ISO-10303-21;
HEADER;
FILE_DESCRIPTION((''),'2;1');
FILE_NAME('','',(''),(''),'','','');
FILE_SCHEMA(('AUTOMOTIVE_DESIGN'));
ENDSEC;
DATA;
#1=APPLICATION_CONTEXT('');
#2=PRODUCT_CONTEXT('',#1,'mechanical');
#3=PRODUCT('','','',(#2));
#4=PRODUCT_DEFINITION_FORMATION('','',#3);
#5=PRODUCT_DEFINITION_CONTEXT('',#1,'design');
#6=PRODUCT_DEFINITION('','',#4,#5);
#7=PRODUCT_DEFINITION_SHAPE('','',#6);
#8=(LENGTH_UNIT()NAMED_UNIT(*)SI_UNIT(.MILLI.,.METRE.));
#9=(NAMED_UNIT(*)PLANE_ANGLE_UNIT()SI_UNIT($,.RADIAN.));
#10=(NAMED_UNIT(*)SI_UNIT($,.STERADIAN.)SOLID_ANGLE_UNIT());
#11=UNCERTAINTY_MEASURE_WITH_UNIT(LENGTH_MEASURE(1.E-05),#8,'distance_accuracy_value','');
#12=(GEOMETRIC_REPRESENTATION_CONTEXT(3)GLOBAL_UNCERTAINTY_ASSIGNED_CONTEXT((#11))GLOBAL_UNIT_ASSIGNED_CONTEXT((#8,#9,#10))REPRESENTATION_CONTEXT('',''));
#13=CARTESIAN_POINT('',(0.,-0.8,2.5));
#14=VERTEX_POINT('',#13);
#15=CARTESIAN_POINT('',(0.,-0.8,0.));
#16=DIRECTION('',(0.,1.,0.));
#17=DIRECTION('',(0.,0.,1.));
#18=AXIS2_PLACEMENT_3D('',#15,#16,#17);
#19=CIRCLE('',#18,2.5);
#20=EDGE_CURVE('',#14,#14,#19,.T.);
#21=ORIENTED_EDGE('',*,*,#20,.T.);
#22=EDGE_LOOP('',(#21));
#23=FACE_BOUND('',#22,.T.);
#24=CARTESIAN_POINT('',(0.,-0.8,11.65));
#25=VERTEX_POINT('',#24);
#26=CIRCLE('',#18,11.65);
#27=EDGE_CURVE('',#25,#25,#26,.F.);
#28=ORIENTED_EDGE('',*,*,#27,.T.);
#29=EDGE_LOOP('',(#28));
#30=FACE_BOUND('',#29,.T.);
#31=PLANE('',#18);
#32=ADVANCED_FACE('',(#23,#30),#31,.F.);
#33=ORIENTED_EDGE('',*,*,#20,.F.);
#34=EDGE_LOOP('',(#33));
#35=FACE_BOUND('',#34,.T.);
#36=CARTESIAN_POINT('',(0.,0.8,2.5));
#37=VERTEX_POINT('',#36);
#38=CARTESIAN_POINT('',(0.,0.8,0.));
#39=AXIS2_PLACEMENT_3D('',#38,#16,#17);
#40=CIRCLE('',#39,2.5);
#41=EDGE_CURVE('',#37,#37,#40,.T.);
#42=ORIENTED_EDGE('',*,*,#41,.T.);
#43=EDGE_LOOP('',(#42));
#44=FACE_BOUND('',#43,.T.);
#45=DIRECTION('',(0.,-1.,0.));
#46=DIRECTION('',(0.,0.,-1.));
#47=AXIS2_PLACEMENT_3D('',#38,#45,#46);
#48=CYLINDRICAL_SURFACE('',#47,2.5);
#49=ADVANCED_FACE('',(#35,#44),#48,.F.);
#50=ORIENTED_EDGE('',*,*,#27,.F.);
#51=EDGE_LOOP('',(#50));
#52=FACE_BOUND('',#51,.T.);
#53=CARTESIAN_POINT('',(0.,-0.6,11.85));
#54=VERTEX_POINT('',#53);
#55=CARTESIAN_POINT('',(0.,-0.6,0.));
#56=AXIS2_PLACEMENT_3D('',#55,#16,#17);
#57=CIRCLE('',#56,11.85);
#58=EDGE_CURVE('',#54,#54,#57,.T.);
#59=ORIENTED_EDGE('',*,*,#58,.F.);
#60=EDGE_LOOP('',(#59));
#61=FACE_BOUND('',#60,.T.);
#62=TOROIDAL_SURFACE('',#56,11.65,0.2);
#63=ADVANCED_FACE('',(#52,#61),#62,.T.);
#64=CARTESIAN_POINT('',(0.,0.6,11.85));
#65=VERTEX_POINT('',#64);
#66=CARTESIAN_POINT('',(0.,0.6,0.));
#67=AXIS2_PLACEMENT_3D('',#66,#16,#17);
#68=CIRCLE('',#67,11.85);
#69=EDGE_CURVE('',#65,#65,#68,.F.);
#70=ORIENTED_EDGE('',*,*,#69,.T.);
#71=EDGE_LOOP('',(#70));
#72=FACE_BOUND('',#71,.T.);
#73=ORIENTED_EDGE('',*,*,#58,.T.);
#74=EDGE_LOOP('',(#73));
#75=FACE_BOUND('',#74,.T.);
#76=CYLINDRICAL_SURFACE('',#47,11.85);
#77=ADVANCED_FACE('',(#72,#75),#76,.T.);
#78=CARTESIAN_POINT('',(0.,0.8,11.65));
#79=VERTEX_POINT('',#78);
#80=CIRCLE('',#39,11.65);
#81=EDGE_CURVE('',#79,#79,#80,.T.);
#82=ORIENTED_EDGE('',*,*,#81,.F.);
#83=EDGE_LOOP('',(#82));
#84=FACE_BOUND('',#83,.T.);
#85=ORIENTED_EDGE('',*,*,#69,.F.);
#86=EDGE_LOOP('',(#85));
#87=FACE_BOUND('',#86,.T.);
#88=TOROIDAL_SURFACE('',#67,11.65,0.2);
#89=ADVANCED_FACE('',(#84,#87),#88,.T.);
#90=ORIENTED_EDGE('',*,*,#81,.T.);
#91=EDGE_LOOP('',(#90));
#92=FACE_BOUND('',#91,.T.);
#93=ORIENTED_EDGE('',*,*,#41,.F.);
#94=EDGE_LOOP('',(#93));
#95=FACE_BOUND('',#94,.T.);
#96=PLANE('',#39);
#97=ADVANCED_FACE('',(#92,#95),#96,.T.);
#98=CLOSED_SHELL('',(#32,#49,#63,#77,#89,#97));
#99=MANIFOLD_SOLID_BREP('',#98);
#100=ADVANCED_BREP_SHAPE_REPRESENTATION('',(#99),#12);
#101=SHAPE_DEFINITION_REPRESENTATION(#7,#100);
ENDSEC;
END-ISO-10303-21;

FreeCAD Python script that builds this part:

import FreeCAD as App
import Part
import Sketcher

V = App.Vector


def edges_at(feature, points):
    """Names of the edges that pass closest to the given points."""
    edges = feature.Shape.Edges
    near = lambda p: min(range(len(edges)), key=lambda i: edges[i].distToShape(Part.Vertex(*p))[0])
    return sorted({f"Edge{near(p) + 1}" for p in points})

doc = App.newDocument("Part")
body = doc.addObject("PartDesign::Body", "Body")

# Sketch on XZ plane
sketch1 = doc.addObject("Sketcher::SketchObject", "Sketch")
body.addObject(sketch1)
sketch1.AttachmentSupport = (doc.XZ_Plane, [""])
sketch1.MapMode = "FlatFace"
sketch1.addGeometry(Part.Circle(V(0, 0, 0), V(0, 0, 1), 11.8), False)
sketch1.addGeometry(Part.Circle(V(0, 0, 0), V(0, 0, 1), 2.5), False)
sketch1.addConstraint(Sketcher.Constraint("Coincident", 0, 3, -1, 1))
sketch1.addConstraint(Sketcher.Constraint("Coincident", 1, 3, -1, 1))
sketch1.addConstraint(Sketcher.Constraint("Diameter", 1, 5.0))
sketch1.addConstraint(Sketcher.Constraint("Diameter", 0, 23.7))
pad1 = doc.addObject("PartDesign::Pad", "Pad")
body.addObject(pad1)
pad1.Profile = sketch1
pad1.Length = 1.6
pad1.Midplane = True
doc.recompute()

fillet = doc.addObject("PartDesign::Fillet", "Fillet")
body.addObject(fillet)
fillet.Base = (pad1, edges_at(pad1, [(0, -0.8, -11.85), (0, 0.8, -11.85)]))
fillet.Radius = 0.2

doc.recompute()
